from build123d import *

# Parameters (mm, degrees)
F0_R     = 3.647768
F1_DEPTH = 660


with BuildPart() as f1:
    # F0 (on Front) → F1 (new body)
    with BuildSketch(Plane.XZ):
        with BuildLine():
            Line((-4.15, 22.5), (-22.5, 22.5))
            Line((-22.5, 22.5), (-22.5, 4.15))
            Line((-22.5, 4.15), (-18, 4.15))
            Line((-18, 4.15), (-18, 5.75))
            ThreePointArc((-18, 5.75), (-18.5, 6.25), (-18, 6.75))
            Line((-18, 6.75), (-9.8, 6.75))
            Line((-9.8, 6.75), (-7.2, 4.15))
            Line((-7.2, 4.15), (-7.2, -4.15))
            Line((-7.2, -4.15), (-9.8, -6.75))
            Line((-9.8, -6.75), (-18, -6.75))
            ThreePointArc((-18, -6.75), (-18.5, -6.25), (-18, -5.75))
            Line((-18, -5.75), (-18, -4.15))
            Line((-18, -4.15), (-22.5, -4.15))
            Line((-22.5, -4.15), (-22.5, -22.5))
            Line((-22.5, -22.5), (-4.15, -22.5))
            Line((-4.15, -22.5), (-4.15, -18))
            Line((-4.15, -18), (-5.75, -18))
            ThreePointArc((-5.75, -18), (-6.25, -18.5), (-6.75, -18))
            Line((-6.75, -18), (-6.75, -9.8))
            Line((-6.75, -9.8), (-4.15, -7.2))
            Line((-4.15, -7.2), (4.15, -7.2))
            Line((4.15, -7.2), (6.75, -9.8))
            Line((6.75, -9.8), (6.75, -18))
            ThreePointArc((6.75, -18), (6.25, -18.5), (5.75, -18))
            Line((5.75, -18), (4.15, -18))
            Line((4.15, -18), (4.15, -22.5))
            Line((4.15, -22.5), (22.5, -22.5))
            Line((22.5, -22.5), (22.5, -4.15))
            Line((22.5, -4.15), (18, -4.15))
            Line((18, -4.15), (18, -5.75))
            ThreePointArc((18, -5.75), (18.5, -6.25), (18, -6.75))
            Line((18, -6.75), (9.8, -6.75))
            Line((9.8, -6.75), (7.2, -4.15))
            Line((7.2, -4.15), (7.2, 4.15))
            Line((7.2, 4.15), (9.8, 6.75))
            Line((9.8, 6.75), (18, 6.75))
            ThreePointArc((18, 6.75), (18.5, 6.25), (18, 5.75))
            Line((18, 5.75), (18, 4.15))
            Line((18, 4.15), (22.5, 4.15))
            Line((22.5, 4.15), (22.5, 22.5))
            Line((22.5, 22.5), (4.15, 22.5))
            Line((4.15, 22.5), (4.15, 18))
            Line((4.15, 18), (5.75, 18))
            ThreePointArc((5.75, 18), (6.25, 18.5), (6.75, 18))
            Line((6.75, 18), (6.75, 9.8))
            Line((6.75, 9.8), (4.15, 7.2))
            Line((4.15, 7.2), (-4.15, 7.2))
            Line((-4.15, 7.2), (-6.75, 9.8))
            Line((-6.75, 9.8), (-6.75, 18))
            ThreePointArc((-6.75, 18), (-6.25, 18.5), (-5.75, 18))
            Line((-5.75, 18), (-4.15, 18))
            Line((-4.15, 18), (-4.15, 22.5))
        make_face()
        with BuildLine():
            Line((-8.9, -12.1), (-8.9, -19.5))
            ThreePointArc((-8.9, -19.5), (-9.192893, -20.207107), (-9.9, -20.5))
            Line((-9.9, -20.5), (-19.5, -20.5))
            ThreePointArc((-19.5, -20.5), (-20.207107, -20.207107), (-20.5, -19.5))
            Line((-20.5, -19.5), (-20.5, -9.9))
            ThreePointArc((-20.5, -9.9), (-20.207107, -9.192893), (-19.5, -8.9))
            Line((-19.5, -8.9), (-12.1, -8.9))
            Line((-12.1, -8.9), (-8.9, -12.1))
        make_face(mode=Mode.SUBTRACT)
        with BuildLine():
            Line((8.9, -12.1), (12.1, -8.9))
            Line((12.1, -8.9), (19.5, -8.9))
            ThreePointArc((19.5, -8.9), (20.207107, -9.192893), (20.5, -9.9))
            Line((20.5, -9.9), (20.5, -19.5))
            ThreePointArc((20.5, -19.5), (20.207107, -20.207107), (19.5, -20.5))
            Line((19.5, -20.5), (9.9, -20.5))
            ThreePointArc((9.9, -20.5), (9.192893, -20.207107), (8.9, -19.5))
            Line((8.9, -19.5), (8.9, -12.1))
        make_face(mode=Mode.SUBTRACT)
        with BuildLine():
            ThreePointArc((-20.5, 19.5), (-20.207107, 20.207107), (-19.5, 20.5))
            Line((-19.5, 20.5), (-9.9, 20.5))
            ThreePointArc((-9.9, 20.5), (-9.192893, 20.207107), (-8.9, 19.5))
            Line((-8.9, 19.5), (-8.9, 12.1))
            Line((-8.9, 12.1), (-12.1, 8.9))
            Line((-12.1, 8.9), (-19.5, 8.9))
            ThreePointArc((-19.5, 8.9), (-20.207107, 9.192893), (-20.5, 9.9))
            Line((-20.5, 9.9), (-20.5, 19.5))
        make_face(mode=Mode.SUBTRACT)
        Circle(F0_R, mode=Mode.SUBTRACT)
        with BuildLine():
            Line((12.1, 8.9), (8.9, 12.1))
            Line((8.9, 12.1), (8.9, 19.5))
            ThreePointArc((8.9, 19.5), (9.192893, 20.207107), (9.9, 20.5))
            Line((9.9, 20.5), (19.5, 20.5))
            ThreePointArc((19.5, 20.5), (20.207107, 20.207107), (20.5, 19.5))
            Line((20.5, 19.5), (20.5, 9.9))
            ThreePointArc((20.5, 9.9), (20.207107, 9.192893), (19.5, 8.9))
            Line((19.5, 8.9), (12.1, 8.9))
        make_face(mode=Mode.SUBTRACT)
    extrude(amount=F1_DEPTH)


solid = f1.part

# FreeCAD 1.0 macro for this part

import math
import FreeCAD as App
import Part
import Sketcher
from FreeCAD import Vector

doc = App.newDocument("Part")
body = doc.addObject("PartDesign::Body", "Body")

# Sketch on XZ plane
sketch1 = body.newObject("Sketcher::SketchObject", "Sketch")
sketch1.AttachmentSupport = (doc.getObject("XZ_Plane"), [""])
sketch1.MapMode = "FlatFace"
sketch1.addGeometry(Part.LineSegment(Vector(-4.2, 22.5, 0), Vector(-22.5, 22.5, 0)), False)
sketch1.addGeometry(Part.LineSegment(Vector(-22.5, 22.5, 0), Vector(-22.5, 4.2, 0)), False)
sketch1.addGeometry(Part.LineSegment(Vector(-22.5, 4.2, 0), Vector(-18, 4.2, 0)), False)
sketch1.addGeometry(Part.LineSegment(Vector(-18, 4.2, 0), Vector(-18, 5.8, 0)), False)
sketch1.addGeometry(Part.ArcOfCircle(Part.Circle(Vector(-18, 6.2, 0), Vector(0, 0, 1), 0.5), math.radians(90), math.radians(270)), False)
sketch1.addGeometry(Part.LineSegment(Vector(-18, 6.8, 0), Vector(-9.8, 6.8, 0)), False)
sketch1.addGeometry(Part.LineSegment(Vector(-9.8, 6.8, 0), Vector(-7.2, 4.2, 0)), False)
sketch1.addGeometry(Part.LineSegment(Vector(-7.2, 4.2, 0), Vector(-7.2, -4.2, 0)), False)
sketch1.addGeometry(Part.LineSegment(Vector(-7.2, -4.2, 0), Vector(-9.8, -6.8, 0)), False)
sketch1.addGeometry(Part.LineSegment(Vector(-9.8, -6.8, 0), Vector(-18, -6.8, 0)), False)
sketch1.addGeometry(Part.ArcOfCircle(Part.Circle(Vector(-18, -6.2, 0), Vector(0, 0, 1), 0.5), math.radians(90), math.radians(270)), False)
sketch1.addGeometry(Part.LineSegment(Vector(-18, -5.8, 0), Vector(-18, -4.2, 0)), False)
sketch1.addGeometry(Part.LineSegment(Vector(-18, -4.2, 0), Vector(-22.5, -4.2, 0)), False)
sketch1.addGeometry(Part.LineSegment(Vector(-22.5, -4.2, 0), Vector(-22.5, -22.5, 0)), False)
sketch1.addGeometry(Part.LineSegment(Vector(-22.5, -22.5, 0), Vector(-4.2, -22.5, 0)), False)
sketch1.addGeometry(Part.LineSegment(Vector(-4.2, -22.5, 0), Vector(-4.2, -18, 0)), False)
sketch1.addGeometry(Part.LineSegment(Vector(-4.2, -18, 0), Vector(-5.8, -18, 0)), False)
sketch1.addGeometry(Part.ArcOfCircle(Part.Circle(Vector(-6.2, -18, 0), Vector(0, 0, 1), 0.5), math.radians(180), math.radians(360)), False)
sketch1.addGeometry(Part.LineSegment(Vector(-6.8, -18, 0), Vector(-6.8, -9.8, 0)), False)
sketch1.addGeometry(Part.LineSegment(Vector(-6.8, -9.8, 0), Vector(-4.2, -7.2, 0)), False)
sketch1.addGeometry(Part.LineSegment(Vector(-4.2, -7.2, 0), Vector(4.2, -7.2, 0)), False)
sketch1.addGeometry(Part.LineSegment(Vector(4.2, -7.2, 0), Vector(6.8, -9.8, 0)), False)
sketch1.addGeometry(Part.LineSegment(Vector(6.8, -9.8, 0), Vector(6.8, -18, 0)), False)
sketch1.addGeometry(Part.ArcOfCircle(Part.Circle(Vector(6.2, -18, 0), Vector(0, 0, 1), 0.5), math.radians(180), math.radians(360)), False)
sketch1.addGeometry(Part.LineSegment(Vector(5.8, -18, 0), Vector(4.2, -18, 0)), False)
sketch1.addGeometry(Part.LineSegment(Vector(4.2, -18, 0), Vector(4.2, -22.5, 0)), False)
sketch1.addGeometry(Part.LineSegment(Vector(4.2, -22.5, 0), Vector(22.5, -22.5, 0)), False)
sketch1.addGeometry(Part.LineSegment(Vector(22.5, -22.5, 0), Vector(22.5, -4.2, 0)), False)
sketch1.addGeometry(Part.LineSegment(Vector(22.5, -4.2, 0), Vector(18, -4.2, 0)), False)
sketch1.addGeometry(Part.LineSegment(Vector(18, -4.2, 0), Vector(18, -5.8, 0)), False)
sketch1.addGeometry(Part.ArcOfCircle(Part.Circle(Vector(18, -6.2, 0), Vector(0, 0, 1), 0.5), math.radians(-90), math.radians(90)), False)
sketch1.addGeometry(Part.LineSegment(Vector(18, -6.8, 0), Vector(9.8, -6.8, 0)), False)
sketch1.addGeometry(Part.LineSegment(Vector(9.8, -6.8, 0), Vector(7.2, -4.2, 0)), False)
sketch1.addGeometry(Part.LineSegment(Vector(7.2, -4.2, 0), Vector(7.2, 4.2, 0)), False)
sketch1.addGeometry(Part.LineSegment(Vector(7.2, 4.2, 0), Vector(9.8, 6.8, 0)), False)
sketch1.addGeometry(Part.LineSegment(Vector(9.8, 6.8, 0), Vector(18, 6.8, 0)), False)
sketch1.addGeometry(Part.ArcOfCircle(Part.Circle(Vector(18, 6.2, 0), Vector(0, 0, 1), 0.5), math.radians(-90), math.radians(90)), False)
sketch1.addGeometry(Part.LineSegment(Vector(18, 5.8, 0), Vector(18, 4.2, 0)), False)
sketch1.addGeometry(Part.LineSegment(Vector(18, 4.2, 0), Vector(22.5, 4.2, 0)), False)
sketch1.addGeometry(Part.LineSegment(Vector(22.5, 4.2, 0), Vector(22.5, 22.5, 0)), False)
sketch1.addGeometry(Part.LineSegment(Vector(22.5, 22.5, 0), Vector(4.2, 22.5, 0)), False)
sketch1.addGeometry(Part.LineSegment(Vector(4.2, 22.5, 0), Vector(4.2, 18, 0)), False)
sketch1.addGeometry(Part.LineSegment(Vector(4.2, 18, 0), Vector(5.8, 18, 0)), False)
sketch1.addGeometry(Part.ArcOfCircle(Part.Circle(Vector(6.2, 18, 0), Vector(0, 0, 1), 0.5), math.radians(0), math.radians(180)), False)
sketch1.addGeometry(Part.LineSegment(Vector(6.8, 18, 0), Vector(6.8, 9.8, 0)), False)
sketch1.addGeometry(Part.LineSegment(Vector(6.8, 9.8, 0), Vector(4.2, 7.2, 0)), False)
sketch1.addGeometry(Part.LineSegment(Vector(4.2, 7.2, 0), Vector(-4.2, 7.2, 0)), False)
sketch1.addGeometry(Part.LineSegment(Vector(-4.2, 7.2, 0), Vector(-6.8, 9.8, 0)), False)
sketch1.addGeometry(Part.LineSegment(Vector(-6.8, 9.8, 0), Vector(-6.8, 18, 0)), False)
sketch1.addGeometry(Part.ArcOfCircle(Part.Circle(Vector(-6.2, 18, 0), Vector(0, 0, 1), 0.5), math.radians(0), math.radians(180)), False)
sketch1.addGeometry(Part.LineSegment(Vector(-5.8, 18, 0), Vector(-4.2, 18, 0)), False)
sketch1.addGeometry(Part.LineSegment(Vector(-4.2, 18, 0), Vector(-4.2, 22.5, 0)), False)
sketch1.addGeometry(Part.LineSegment(Vector(-12.1, -8.9, 0), Vector(-8.9, -12.1, 0)), False)
sketch1.addGeometry(Part.LineSegment(Vector(-8.9, -12.1, 0), Vector(-8.9, -19.5, 0)), False)
sketch1.addGeometry(Part.ArcOfCircle(Part.Circle(Vector(-9.9, -19.5, 0), Vector(0, 0, 1), 1), math.radians(-90), math.radians(0)), False)
sketch1.addGeometry(Part.LineSegment(Vector(-9.9, -20.5, 0), Vector(-19.5, -20.5, 0)), False)
sketch1.addGeometry(Part.ArcOfCircle(Part.Circle(Vector(-19.5, -19.5, 0), Vector(0, 0, 1), 1), math.radians(180), math.radians(270)), False)
sketch1.addGeometry(Part.LineSegment(Vector(-20.5, -19.5, 0), Vector(-20.5, -9.9, 0)), False)
sketch1.addGeometry(Part.ArcOfCircle(Part.Circle(Vector(-19.5, -9.9, 0), Vector(0, 0, 1), 1), math.radians(90), math.radians(180)), False)
sketch1.addGeometry(Part.LineSegment(Vector(-19.5, -8.9, 0), Vector(-12.1, -8.9, 0)), False)
sketch1.addGeometry(Part.LineSegment(Vector(8.9, -19.5, 0), Vector(8.9, -12.1, 0)), False)
sketch1.addGeometry(Part.LineSegment(Vector(8.9, -12.1, 0), Vector(12.1, -8.9, 0)), False)
sketch1.addGeometry(Part.LineSegment(Vector(12.1, -8.9, 0), Vector(19.5, -8.9, 0)), False)
sketch1.addGeometry(Part.ArcOfCircle(Part.Circle(Vector(19.5, -9.9, 0), Vector(0, 0, 1), 1), math.radians(0), math.radians(90)), False)
sketch1.addGeometry(Part.LineSegment(Vector(20.5, -9.9, 0), Vector(20.5, -19.5, 0)), False)
sketch1.addGeometry(Part.ArcOfCircle(Part.Circle(Vector(19.5, -19.5, 0), Vector(0, 0, 1), 1), math.radians(-90), math.radians(0)), False)
sketch1.addGeometry(Part.LineSegment(Vector(19.5, -20.5, 0), Vector(9.9, -20.5, 0)), False)
sketch1.addGeometry(Part.ArcOfCircle(Part.Circle(Vector(9.9, -19.5, 0), Vector(0, 0, 1), 1), math.radians(180), math.radians(270)), False)
sketch1.addGeometry(Part.LineSegment(Vector(-20.5, 9.9, 0), Vector(-20.5, 19.5, 0)), False)
sketch1.addGeometry(Part.ArcOfCircle(Part.Circle(Vector(-19.5, 19.5, 0), Vector(0, 0, 1), 1), math.radians(90), math.radians(180)), False)
sketch1.addGeometry(Part.LineSegment(Vector(-19.5, 20.5, 0), Vector(-9.9, 20.5, 0)), False)
sketch1.addGeometry(Part.ArcOfCircle(Part.Circle(Vector(-9.9, 19.5, 0), Vector(0, 0, 1), 1), math.radians(0), math.radians(90)), False)
sketch1.addGeometry(Part.LineSegment(Vector(-8.9, 19.5, 0), Vector(-8.9, 12.1, 0)), False)
sketch1.addGeometry(Part.LineSegment(Vector(-8.9, 12.1, 0), Vector(-12.1, 8.9, 0)), False)
sketch1.addGeometry(Part.LineSegment(Vector(-12.1, 8.9, 0), Vector(-19.5, 8.9, 0)), False)
sketch1.addGeometry(Part.ArcOfCircle(Part.Circle(Vector(-19.5, 9.9, 0), Vector(0, 0, 1), 1), math.radians(180), math.radians(270)), False)
sketch1.addGeometry(Part.Circle(Vector(0, 0, 0), Vector(0, 0, 1), 3.6), False)
sketch1.addGeometry(Part.LineSegment(Vector(19.5, 8.9, 0), Vector(12.1, 8.9, 0)), False)
sketch1.addGeometry(Part.LineSegment(Vector(12.1, 8.9, 0), Vector(8.9, 12.1, 0)), False)
sketch1.addGeometry(Part.LineSegment(Vector(8.9, 12.1, 0), Vector(8.9, 19.5, 0)), False)
sketch1.addGeometry(Part.ArcOfCircle(Part.Circle(Vector(9.9, 19.5, 0), Vector(0, 0, 1), 1), math.radians(90), math.radians(180)), False)
sketch1.addGeometry(Part.LineSegment(Vector(9.9, 20.5, 0), Vector(19.5, 20.5, 0)), False)
sketch1.addGeometry(Part.ArcOfCircle(Part.Circle(Vector(19.5, 19.5, 0), Vector(0, 0, 1), 1), math.radians(0), math.radians(90)), False)
sketch1.addGeometry(Part.LineSegment(Vector(20.5, 19.5, 0), Vector(20.5, 9.9, 0)), False)
sketch1.addGeometry(Part.ArcOfCircle(Part.Circle(Vector(19.5, 9.9, 0), Vector(0, 0, 1), 1), math.radians(-90), math.radians(0)), False)
sketch1.addConstraint(Sketcher.Constraint("Coincident", 0, 2, 1, 1))
sketch1.addConstraint(Sketcher.Constraint("Coincident", 1, 2, 2, 1))
sketch1.addConstraint(Sketcher.Constraint("Coincident", 2, 2, 3, 1))
sketch1.addConstraint(Sketcher.Constraint("Coincident", 3, 2, 4, 2))
sketch1.addConstraint(Sketcher.Constraint("Tangent", 4, 1, 5, 1))
sketch1.addConstraint(Sketcher.Constraint("Coincident", 5, 2, 6, 1))
sketch1.addConstraint(Sketcher.Constraint("Coincident", 6, 2, 7, 1))
sketch1.addConstraint(Sketcher.Constraint("Coincident", 7, 2, 8, 1))
sketch1.addConstraint(Sketcher.Constraint("Coincident", 8, 2, 9, 1))
sketch1.addConstraint(Sketcher.Constraint("Tangent", 9, 2, 10, 2))
sketch1.addConstraint(Sketcher.Constraint("Coincident", 10, 1, 11, 1))
sketch1.addConstraint(Sketcher.Constraint("Coincident", 11, 2, 12, 1))
sketch1.addConstraint(Sketcher.Constraint("Coincident", 12, 2, 13, 1))
sketch1.addConstraint(Sketcher.Constraint("Coincident", 13, 2, 14, 1))
sketch1.addConstraint(Sketcher.Constraint("Coincident", 14, 2, 15, 1))
sketch1.addConstraint(Sketcher.Constraint("Coincident", 15, 2, 16, 1))
sketch1.addConstraint(Sketcher.Constraint("Coincident", 16, 2, 17, 2))
sketch1.addConstraint(Sketcher.Constraint("Tangent", 17, 1, 18, 1))
sketch1.addConstraint(Sketcher.Constraint("Coincident", 18, 2, 19, 1))
sketch1.addConstraint(Sketcher.Constraint("Coincident", 19, 2, 20, 1))
sketch1.addConstraint(Sketcher.Constraint("Coincident", 20, 2, 21, 1))
sketch1.addConstraint(Sketcher.Constraint("Coincident", 21, 2, 22, 1))
sketch1.addConstraint(Sketcher.Constraint("Tangent", 22, 2, 23, 2))
sketch1.addConstraint(Sketcher.Constraint("Coincident", 23, 1, 24, 1))
sketch1.addConstraint(Sketcher.Constraint("Coincident", 24, 2, 25, 1))
sketch1.addConstraint(Sketcher.Constraint("Coincident", 25, 2, 26, 1))
sketch1.addConstraint(Sketcher.Constraint("Coincident", 26, 2, 27, 1))
sketch1.addConstraint(Sketcher.Constraint("Coincident", 27, 2, 28, 1))
sketch1.addConstraint(Sketcher.Constraint("Coincident", 28, 2, 29, 1))
sketch1.addConstraint(Sketcher.Constraint("Coincident", 29, 2, 30, 2))
sketch1.addConstraint(Sketcher.Constraint("Tangent", 30, 1, 31, 1))
sketch1.addConstraint(Sketcher.Constraint("Coincident", 31, 2, 32, 1))
sketch1.addConstraint(Sketcher.Constraint("Coincident", 32, 2, 33, 1))
sketch1.addConstraint(Sketcher.Constraint("Coincident", 33, 2, 34, 1))
sketch1.addConstraint(Sketcher.Constraint("Coincident", 34, 2, 35, 1))
sketch1.addConstraint(Sketcher.Constraint("Tangent", 35, 2, 36, 2))
sketch1.addConstraint(Sketcher.Constraint("Coincident", 36, 1, 37, 1))
sketch1.addConstraint(Sketcher.Constraint("Coincident", 37, 2, 38, 1))
sketch1.addConstraint(Sketcher.Constraint("Coincident", 38, 2, 39, 1))
sketch1.addConstraint(Sketcher.Constraint("Coincident", 39, 2, 40, 1))
sketch1.addConstraint(Sketcher.Constraint("Coincident", 40, 2, 41, 1))
sketch1.addConstraint(Sketcher.Constraint("Coincident", 41, 2, 42, 1))
sketch1.addConstraint(Sketcher.Constraint("Coincident", 42, 2, 43, 2))
sketch1.addConstraint(Sketcher.Constraint("Tangent", 43, 1, 44, 1))
sketch1.addConstraint(Sketcher.Constraint("Coincident", 44, 2, 45, 1))
sketch1.addConstraint(Sketcher.Constraint("Coincident", 45, 2, 46, 1))
sketch1.addConstraint(Sketcher.Constraint("Coincident", 46, 2, 47, 1))
sketch1.addConstraint(Sketcher.Constraint("Coincident", 47, 2, 48, 1))
sketch1.addConstraint(Sketcher.Constraint("Tangent", 48, 2, 49, 2))
sketch1.addConstraint(Sketcher.Constraint("Coincident", 49, 1, 50, 1))
sketch1.addConstraint(Sketcher.Constraint("Coincident", 50, 2, 51, 1))
sketch1.addConstraint(Sketcher.Constraint("Coincident", 51, 2, 0, 1))
sketch1.addConstraint(Sketcher.Constraint("Coincident", 52, 2, 53, 1))
sketch1.addConstraint(Sketcher.Constraint("Tangent", 53, 2, 54, 2))
sketch1.addConstraint(Sketcher.Constraint("Tangent", 54, 1, 55, 1))
sketch1.addConstraint(Sketcher.Constraint("Tangent", 55, 2, 56, 2))
sketch1.addConstraint(Sketcher.Constraint("Tangent", 56, 1, 57, 1))
sketch1.addConstraint(Sketcher.Constraint("Tangent", 57, 2, 58, 2))
sketch1.addConstraint(Sketcher.Constraint("Tangent", 58, 1, 59, 1))
sketch1.addConstraint(Sketcher.Constraint("Coincident", 59, 2, 52, 1))
sketch1.addConstraint(Sketcher.Constraint("Coincident", 60, 2, 61, 1))
sketch1.addConstraint(Sketcher.Constraint("Coincident", 61, 2, 62, 1))
sketch1.addConstraint(Sketcher.Constraint("Tangent", 62, 2, 63, 2))
sketch1.addConstraint(Sketcher.Constraint("Tangent", 63, 1, 64, 1))
sketch1.addConstraint(Sketcher.Constraint("Tangent", 64, 2, 65, 2))
sketch1.addConstraint(Sketcher.Constraint("Tangent", 65, 1, 66, 1))
sketch1.addConstraint(Sketcher.Constraint("Tangent", 66, 2, 67, 2))
sketch1.addConstraint(Sketcher.Constraint("Tangent", 67, 1, 60, 1))
sketch1.addConstraint(Sketcher.Constraint("Tangent", 68, 2, 69, 2))
sketch1.addConstraint(Sketcher.Constraint("Tangent", 69, 1, 70, 1))
sketch1.addConstraint(Sketcher.Constraint("Tangent", 70, 2, 71, 2))
sketch1.addConstraint(Sketcher.Constraint("Tangent", 71, 1, 72, 1))
sketch1.addConstraint(Sketcher.Constraint("Coincident", 72, 2, 73, 1))
sketch1.addConstraint(Sketcher.Constraint("Coincident", 73, 2, 74, 1))
sketch1.addConstraint(Sketcher.Constraint("Tangent", 74, 2, 75, 2))
sketch1.addConstraint(Sketcher.Constraint("Tangent", 75, 1, 68, 1))
sketch1.addConstraint(Sketcher.Constraint("Coincident", 77, 2, 78, 1))
sketch1.addConstraint(Sketcher.Constraint("Coincident", 78, 2, 79, 1))
sketch1.addConstraint(Sketcher.Constraint("Tangent", 79, 2, 80, 2))
sketch1.addConstraint(Sketcher.Constraint("Tangent", 80, 1, 81, 1))
sketch1.addConstraint(Sketcher.Constraint("Tangent", 81, 2, 82, 2))
sketch1.addConstraint(Sketcher.Constraint("Tangent", 82, 1, 83, 1))
sketch1.addConstraint(Sketcher.Constraint("Tangent", 83, 2, 84, 2))
sketch1.addConstraint(Sketcher.Constraint("Tangent", 84, 1, 77, 1))
sketch1.addConstraint(Sketcher.Constraint("Horizontal", 0))
sketch1.addConstraint(Sketcher.Constraint("Vertical", 1))
sketch1.addConstraint(Sketcher.Constraint("Horizontal", 2))
sketch1.addConstraint(Sketcher.Constraint("Vertical", 3))
sketch1.addConstraint(Sketcher.Constraint("Horizontal", 5))
sketch1.addConstraint(Sketcher.Constraint("Vertical", 7))
sketch1.addConstraint(Sketcher.Constraint("Horizontal", 9))
sketch1.addConstraint(Sketcher.Constraint("Vertical", 11))
sketch1.addConstraint(Sketcher.Constraint("Horizontal", 12))
sketch1.addConstraint(Sketcher.Constraint("Vertical", 13))
sketch1.addConstraint(Sketcher.Constraint("Horizontal", 14))
sketch1.addConstraint(Sketcher.Constraint("Vertical", 15))
sketch1.addConstraint(Sketcher.Constraint("Horizontal", 16))
sketch1.addConstraint(Sketcher.Constraint("Vertical", 18))
sketch1.addConstraint(Sketcher.Constraint("Horizontal", 20))
sketch1.addConstraint(Sketcher.Constraint("Vertical", 22))
sketch1.addConstraint(Sketcher.Constraint("Horizontal", 24))
sketch1.addConstraint(Sketcher.Constraint("Vertical", 25))
sketch1.addConstraint(Sketcher.Constraint("Horizontal", 26))
sketch1.addConstraint(Sketcher.Constraint("Vertical", 27))
sketch1.addConstraint(Sketcher.Constraint("Horizontal", 28))
sketch1.addConstraint(Sketcher.Constraint("Vertical", 29))
sketch1.addConstraint(Sketcher.Constraint("Horizontal", 31))
sketch1.addConstraint(Sketcher.Constraint("Vertical", 33))
sketch1.addConstraint(Sketcher.Constraint("Horizontal", 35))
sketch1.addConstraint(Sketcher.Constraint("Vertical", 37))
sketch1.addConstraint(Sketcher.Constraint("Horizontal", 38))
sketch1.addConstraint(Sketcher.Constraint("Vertical", 39))
sketch1.addConstraint(Sketcher.Constraint("Horizontal", 40))
sketch1.addConstraint(Sketcher.Constraint("Vertical", 41))
sketch1.addConstraint(Sketcher.Constraint("Horizontal", 42))
sketch1.addConstraint(Sketcher.Constraint("Vertical", 44))
sketch1.addConstraint(Sketcher.Constraint("Horizontal", 46))
sketch1.addConstraint(Sketcher.Constraint("Vertical", 48))
sketch1.addConstraint(Sketcher.Constraint("Horizontal", 50))
sketch1.addConstraint(Sketcher.Constraint("Vertical", 51))
sketch1.addConstraint(Sketcher.Constraint("Vertical", 53))
sketch1.addConstraint(Sketcher.Constraint("Horizontal", 55))
sketch1.addConstraint(Sketcher.Constraint("Vertical", 57))
sketch1.addConstraint(Sketcher.Constraint("Horizontal", 59))
sketch1.addConstraint(Sketcher.Constraint("Vertical", 60))
sketch1.addConstraint(Sketcher.Constraint("Horizontal", 62))
sketch1.addConstraint(Sketcher.Constraint("Vertical", 64))
sketch1.addConstraint(Sketcher.Constraint("Horizontal", 66))
sketch1.addConstraint(Sketcher.Constraint("Vertical", 68))
sketch1.addConstraint(Sketcher.Constraint("Horizontal", 70))
sketch1.addConstraint(Sketcher.Constraint("Vertical", 72))
sketch1.addConstraint(Sketcher.Constraint("Horizontal", 74))
sketch1.addConstraint(Sketcher.Constraint("Horizontal", 77))
sketch1.addConstraint(Sketcher.Constraint("Vertical", 79))
sketch1.addConstraint(Sketcher.Constraint("Horizontal", 81))
sketch1.addConstraint(Sketcher.Constraint("Vertical", 83))
sketch1.addConstraint(Sketcher.Constraint("Coincident", 76, 3, -1, 1))
sketch1.addConstraint(Sketcher.Constraint("Equal", 4, 10))
sketch1.addConstraint(Sketcher.Constraint("Equal", 10, 17))
sketch1.addConstraint(Sketcher.Constraint("Equal", 17, 23))
sketch1.addConstraint(Sketcher.Constraint("Equal", 23, 30))
sketch1.addConstraint(Sketcher.Constraint("Equal", 30, 36))
sketch1.addConstraint(Sketcher.Constraint("Equal", 36, 43))
sketch1.addConstraint(Sketcher.Constraint("Equal", 43, 49))
sketch1.addConstraint(Sketcher.Constraint("Equal", 54, 56))
sketch1.addConstraint(Sketcher.Constraint("Equal", 56, 58))
sketch1.addConstraint(Sketcher.Constraint("Equal", 58, 63))
sketch1.addConstraint(Sketcher.Constraint("Equal", 63, 65))
sketch1.addConstraint(Sketcher.Constraint("Equal", 65, 67))
sketch1.addConstraint(Sketcher.Constraint("Equal", 67, 69))
sketch1.addConstraint(Sketcher.Constraint("Equal", 69, 71))
sketch1.addConstraint(Sketcher.Constraint("Equal", 71, 75))
sketch1.addConstraint(Sketcher.Constraint("Equal", 75, 80))
sketch1.addConstraint(Sketcher.Constraint("Equal", 80, 82))
sketch1.addConstraint(Sketcher.Constraint("Equal", 82, 84))
sketch1.addConstraint(Sketcher.Constraint("Symmetric", 4, 3, 30, 3, -1, 1))
sketch1.addConstraint(Sketcher.Constraint("Symmetric", 10, 3, 36, 3, -1, 1))
sketch1.addConstraint(Sketcher.Constraint("Symmetric", 17, 3, 43, 3, -1, 1))
sketch1.addConstraint(Sketcher.Constraint("Symmetric", 23, 3, 49, 3, -1, 1))
sketch1.addConstraint(Sketcher.Constraint("Symmetric", 65, 3, 69, 3, -1, 1))
sketch1.addConstraint(Sketcher.Constraint("Symmetric", 54, 3, 80, 3, -1, 1))
sketch1.addConstraint(Sketcher.Constraint("Symmetric", 58, 3, 84, 3, -1, 1))
sketch1.addConstraint(Sketcher.Constraint("Symmetric", 0, 2, 26, 2, -1, 1))
sketch1.addConstraint(Sketcher.Constraint("Symmetric", 2, 2, 28, 2, -1, 1))
sketch1.addConstraint(Sketcher.Constraint("Symmetric", 6, 2, 32, 2, -1, 1))
sketch1.addConstraint(Sketcher.Constraint("Symmetric", 11, 2, 37, 2, -1, 1))
sketch1.addConstraint(Sketcher.Constraint("Symmetric", 13, 2, 39, 2, -1, 1))
sketch1.addConstraint(Sketcher.Constraint("Symmetric", 15, 2, 41, 2, -1, 1))
sketch1.addConstraint(Sketcher.Constraint("Symmetric", 19, 2, 45, 2, -1, 1))
sketch1.addConstraint(Sketcher.Constraint("Symmetric", 24, 2, 50, 2, -1, 1))
sketch1.addConstraint(Sketcher.Constraint("Symmetric", 60, 2, 72, 2, -1, 1))
sketch1.addConstraint(Sketcher.Constraint("Symmetric", 61, 2, 73, 2, -1, 1))
sketch1.addConstraint(Sketcher.Constraint("Symmetric", 17, 3, 23, 3, -2))
sketch1.addConstraint(Sketcher.Constraint("Symmetric", 10, 3, 30, 3, -2))
sketch1.addConstraint(Sketcher.Constraint("Symmetric", 58, 3, 63, 3, -2))
sketch1.addConstraint(Sketcher.Constraint("Symmetric", 54, 3, 67, 3, -2))
sketch1.addConstraint(Sketcher.Constraint("Symmetric", 15, 2, 24, 2, -2))
sketch1.addConstraint(Sketcher.Constraint("Symmetric", 13, 2, 26, 2, -2))
sketch1.addConstraint(Sketcher.Constraint("Symmetric", 11, 2, 28, 2, -2))
sketch1.addConstraint(Sketcher.Constraint("Perpendicular", 6, 8))
sketch1.addConstraint(Sketcher.Constraint("Parallel", 8, 19))
sketch1.addConstraint(Sketcher.Constraint("Perpendicular", 19, 21))
sketch1.addConstraint(Sketcher.Constraint("Parallel", 21, 32))
sketch1.addConstraint(Sketcher.Constraint("Perpendicular", 32, 34))
sketch1.addConstraint(Sketcher.Constraint("Parallel", 34, 45))
sketch1.addConstraint(Sketcher.Constraint("Perpendicular", 45, 47))
sketch1.addConstraint(Sketcher.Constraint("Parallel", 47, 52))
sketch1.addConstraint(Sketcher.Constraint("Perpendicular", 52, 61))
sketch1.addConstraint(Sketcher.Constraint("Perpendicular", 73, 78))
sketch1.addConstraint(Sketcher.Constraint("Horizontal", 2, 2, 6, 2))
sketch1.addConstraint(Sketcher.Constraint("Horizontal", 7, 2, 11, 2))
sketch1.addConstraint(Sketcher.Constraint("Horizontal", 23, 3, 15, 2))
sketch1.addConstraint(Sketcher.Constraint("Horizontal", 18, 2, 21, 2))
sketch1.addConstraint(Sketcher.Constraint("Horizontal", 6, 2, 33, 2))
sketch1.addConstraint(Sketcher.Constraint("Horizontal", 44, 2, 47, 2))
sketch1.addConstraint(Sketcher.Constraint("Horizontal", 52, 2, 60, 2))
sketch1.addConstraint(Sketcher.Constraint("Horizontal", 72, 2, 78, 2))
sketch1.addConstraint(Sketcher.Constraint("Vertical", 10, 3, 2, 2))
sketch1.addConstraint(Sketcher.Constraint("Vertical", 5, 2, 8, 2))
sketch1.addConstraint(Sketcher.Constraint("Vertical", 15, 2, 19, 2))
sketch1.addConstraint(Sketcher.Constraint("Equal", 40, 1))
sketch1.addConstraint(Sketcher.Constraint("Equal", 50, 3))
sketch1.addConstraint(Sketcher.Constraint("Equal", 46, 7))
sketch1.addConstraint(Sketcher.Constraint("Equal", 38, 15))
sketch1.addConstraint(Sketcher.Constraint("Equal", 35, 18))
sketch1.addConstraint(Sketcher.Constraint("Equal", 77, 53))
sketch1.addConstraint(Sketcher.Constraint("Radius", 54, 0.999999))
sketch1.addConstraint(Sketcher.Constraint("Radius", 4, 0.5))
sketch1.addConstraint(Sketcher.Constraint("DistanceX", 2, 1, 2, 2, 4.5))
sketch1.addConstraint(Sketcher.Constraint("DistanceX", 5, 1, 5, 2, 8.2))
sketch1.addConstraint(Sketcher.Constraint("DistanceX", 16, 2, 16, 1, 1.6))
sketch1.addConstraint(Sketcher.Constraint("DistanceX", 20, 1, 20, 2, 8.3))
sketch1.addConstraint(Sketcher.Constraint("DistanceX", 55, 2, 55, 1, 9.6))
sketch1.addConstraint(Sketcher.Constraint("DistanceX", 59, 1, 59, 2, 7.4))
sketch1.addConstraint(Sketcher.Constraint("DistanceX", 4, 3, -1, 1, 18.0))
sketch1.addConstraint(Sketcher.Constraint("DistanceX", 54, 3, -1, 1, 9.899999))
sketch1.addConstraint(Sketcher.Constraint("DistanceY", 54, 3, -1, 1, 19.500001))
sketch1.addConstraint(Sketcher.Constraint("Diameter", 76, 7.295536))
pad1 = body.newObject("PartDesign::Pad", "Pad")
pad1.Profile = sketch1
pad1.Length = 660

doc.recompute()
